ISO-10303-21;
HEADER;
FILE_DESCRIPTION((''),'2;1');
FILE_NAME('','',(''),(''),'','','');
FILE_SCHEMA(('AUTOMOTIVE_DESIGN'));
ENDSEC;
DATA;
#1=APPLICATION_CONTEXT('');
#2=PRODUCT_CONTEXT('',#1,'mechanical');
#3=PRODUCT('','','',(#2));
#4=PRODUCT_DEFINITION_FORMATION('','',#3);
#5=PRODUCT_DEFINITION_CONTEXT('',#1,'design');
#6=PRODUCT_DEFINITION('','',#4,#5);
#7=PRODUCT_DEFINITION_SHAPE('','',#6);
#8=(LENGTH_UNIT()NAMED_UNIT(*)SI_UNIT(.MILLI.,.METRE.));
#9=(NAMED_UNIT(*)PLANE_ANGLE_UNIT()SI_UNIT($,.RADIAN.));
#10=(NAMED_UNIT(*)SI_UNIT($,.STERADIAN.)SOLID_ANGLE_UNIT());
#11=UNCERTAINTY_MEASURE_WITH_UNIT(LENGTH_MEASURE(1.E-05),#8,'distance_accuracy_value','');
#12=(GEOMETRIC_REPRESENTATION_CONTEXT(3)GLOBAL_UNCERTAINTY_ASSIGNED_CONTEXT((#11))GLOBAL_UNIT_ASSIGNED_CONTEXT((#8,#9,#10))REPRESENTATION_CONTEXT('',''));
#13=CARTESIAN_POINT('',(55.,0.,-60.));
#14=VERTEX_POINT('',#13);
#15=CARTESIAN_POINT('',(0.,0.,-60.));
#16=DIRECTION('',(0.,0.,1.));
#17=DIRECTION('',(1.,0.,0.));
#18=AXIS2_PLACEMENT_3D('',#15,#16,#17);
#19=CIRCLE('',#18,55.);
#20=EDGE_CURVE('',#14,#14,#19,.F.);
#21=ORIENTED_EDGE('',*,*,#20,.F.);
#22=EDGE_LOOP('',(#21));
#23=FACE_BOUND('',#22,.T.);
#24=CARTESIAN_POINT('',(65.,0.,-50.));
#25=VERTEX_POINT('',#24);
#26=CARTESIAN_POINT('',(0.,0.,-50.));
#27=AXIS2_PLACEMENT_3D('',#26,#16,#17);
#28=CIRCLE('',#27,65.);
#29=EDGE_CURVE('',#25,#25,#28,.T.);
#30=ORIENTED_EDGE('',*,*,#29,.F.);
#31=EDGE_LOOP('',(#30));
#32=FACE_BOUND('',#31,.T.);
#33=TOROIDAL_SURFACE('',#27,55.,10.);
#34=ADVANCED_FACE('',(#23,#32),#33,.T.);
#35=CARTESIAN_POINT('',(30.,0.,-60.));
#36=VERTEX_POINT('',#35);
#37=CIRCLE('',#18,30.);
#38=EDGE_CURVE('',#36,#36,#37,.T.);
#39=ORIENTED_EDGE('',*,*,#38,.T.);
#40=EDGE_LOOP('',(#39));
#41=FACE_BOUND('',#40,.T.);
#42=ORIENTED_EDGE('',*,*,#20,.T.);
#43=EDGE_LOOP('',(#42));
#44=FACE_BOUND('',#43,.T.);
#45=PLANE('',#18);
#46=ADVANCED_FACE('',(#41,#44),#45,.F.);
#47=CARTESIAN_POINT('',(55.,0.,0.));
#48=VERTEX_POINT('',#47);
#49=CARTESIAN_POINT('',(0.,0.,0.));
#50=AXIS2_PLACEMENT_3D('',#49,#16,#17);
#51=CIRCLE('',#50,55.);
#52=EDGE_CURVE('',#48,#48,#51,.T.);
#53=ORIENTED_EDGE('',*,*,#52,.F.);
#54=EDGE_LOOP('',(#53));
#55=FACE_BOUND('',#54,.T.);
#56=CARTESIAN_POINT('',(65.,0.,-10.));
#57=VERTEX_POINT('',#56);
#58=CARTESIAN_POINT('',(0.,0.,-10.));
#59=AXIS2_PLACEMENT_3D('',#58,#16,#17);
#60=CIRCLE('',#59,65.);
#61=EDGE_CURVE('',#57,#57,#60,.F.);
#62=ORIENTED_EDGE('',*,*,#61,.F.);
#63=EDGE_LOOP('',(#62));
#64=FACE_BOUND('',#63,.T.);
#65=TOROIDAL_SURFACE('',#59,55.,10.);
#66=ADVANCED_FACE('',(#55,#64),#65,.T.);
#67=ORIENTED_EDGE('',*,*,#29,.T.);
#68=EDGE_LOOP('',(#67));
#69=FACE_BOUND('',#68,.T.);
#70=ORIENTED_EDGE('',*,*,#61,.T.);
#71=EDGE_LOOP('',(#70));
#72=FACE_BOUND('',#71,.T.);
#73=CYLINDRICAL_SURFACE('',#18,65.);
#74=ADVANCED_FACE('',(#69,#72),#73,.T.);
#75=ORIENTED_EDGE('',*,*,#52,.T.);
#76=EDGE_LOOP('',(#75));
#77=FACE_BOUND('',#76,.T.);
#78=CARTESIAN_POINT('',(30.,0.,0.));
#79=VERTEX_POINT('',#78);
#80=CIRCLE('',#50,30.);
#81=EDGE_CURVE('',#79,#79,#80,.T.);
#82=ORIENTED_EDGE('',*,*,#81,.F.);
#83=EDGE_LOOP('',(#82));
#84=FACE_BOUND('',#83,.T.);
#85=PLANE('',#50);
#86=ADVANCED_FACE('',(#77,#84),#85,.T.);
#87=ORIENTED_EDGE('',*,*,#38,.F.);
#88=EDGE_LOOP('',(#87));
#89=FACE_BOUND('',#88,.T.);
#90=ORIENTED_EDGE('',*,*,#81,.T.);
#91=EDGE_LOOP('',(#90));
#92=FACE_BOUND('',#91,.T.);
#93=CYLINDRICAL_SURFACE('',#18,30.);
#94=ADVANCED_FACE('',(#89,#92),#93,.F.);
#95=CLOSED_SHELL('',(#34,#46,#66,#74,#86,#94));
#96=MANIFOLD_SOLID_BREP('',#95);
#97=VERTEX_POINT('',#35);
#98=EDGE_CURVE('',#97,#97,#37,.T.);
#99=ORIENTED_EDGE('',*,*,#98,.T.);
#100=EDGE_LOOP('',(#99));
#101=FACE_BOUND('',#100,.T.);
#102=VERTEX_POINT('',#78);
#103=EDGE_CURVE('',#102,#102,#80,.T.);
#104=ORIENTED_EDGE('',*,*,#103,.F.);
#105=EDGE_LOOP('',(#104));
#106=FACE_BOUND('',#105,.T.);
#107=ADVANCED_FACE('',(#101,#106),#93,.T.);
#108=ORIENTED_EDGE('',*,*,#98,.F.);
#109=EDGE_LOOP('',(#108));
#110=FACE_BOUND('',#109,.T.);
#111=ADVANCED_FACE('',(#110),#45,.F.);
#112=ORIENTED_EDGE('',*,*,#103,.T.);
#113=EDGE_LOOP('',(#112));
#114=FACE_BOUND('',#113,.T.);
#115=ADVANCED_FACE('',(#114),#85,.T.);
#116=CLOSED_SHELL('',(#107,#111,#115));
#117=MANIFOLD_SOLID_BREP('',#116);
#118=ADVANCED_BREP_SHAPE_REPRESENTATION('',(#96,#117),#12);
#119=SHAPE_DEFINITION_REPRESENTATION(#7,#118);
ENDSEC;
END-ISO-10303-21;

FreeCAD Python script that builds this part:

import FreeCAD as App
import Part
import Sketcher
Q = App.Units.Quantity


def edges_at(feature, points):
    """Names of the edges that pass closest to the given points."""
    edges = feature.Shape.Edges
    near = lambda p: min(range(len(edges)), key=lambda i: edges[i].distToShape(Part.Vertex(*p))[0])
    return sorted({f"Edge{near(p) + 1}" for p in points})

doc = App.newDocument("Part")
body = doc.addObject("PartDesign::Body", "Body")

sketch1 = doc.addObject("Sketcher::SketchObject", "Sketch")
body.addObject(sketch1)
sketch1.AttachmentSupport = (doc.XY_Plane, [""])
sketch1.MapMode = "FlatFace"
sketch1.addGeometry([
    Part.Circle(App.Vector(0, 0, 0), App.Vector(0, 0, 1), 65),
    Part.Circle(App.Vector(0, 0, 0), App.Vector(0, 0, 1), 30),
], False)
sketch1.addConstraint([
    Sketcher.Constraint("Coincident", 0, 3, -1, 1),
    Sketcher.Constraint("Coincident", 1, 3, -1, 1),
    Sketcher.Constraint("Diameter", 0, Q("130 mm")),
    Sketcher.Constraint("Diameter", 1, Q("60 mm")),
])
pad1 = doc.addObject("PartDesign::Pad", "Pad")
body.addObject(pad1)
pad1.Profile = sketch1
pad1.Length = 60
pad1.Reversed = True
doc.recompute()

fillet = doc.addObject("PartDesign::Fillet", "Fillet")
body.addObject(fillet)
fillet.Base = (pad1, edges_at(pad1, [(-65, 0, 0), (-65, 0, -60)]))
fillet.Radius = 10
body2 = doc.addObject("PartDesign::Body", "Body001")

sketch2 = doc.addObject("Sketcher::SketchObject", "Sketch001")
body2.addObject(sketch2)
sketch2.AttachmentSupport = (doc.getObject("XY_Plane001"), [""])
sketch2.MapMode = "FlatFace"
sketch2.addGeometry(Part.Circle(App.Vector(0, 0, 0), App.Vector(0, 0, 1), 30), False)
sketch2.addConstraint([
    Sketcher.Constraint("Coincident", 0, 3, -1, 1),
    Sketcher.Constraint("Diameter", 0, Q("60 mm")),
])
pad2 = doc.addObject("PartDesign::Pad", "Pad001")
body2.addObject(pad2)
pad2.Profile = sketch2
pad2.Length = 60
pad2.Reversed = True

doc.recompute()
